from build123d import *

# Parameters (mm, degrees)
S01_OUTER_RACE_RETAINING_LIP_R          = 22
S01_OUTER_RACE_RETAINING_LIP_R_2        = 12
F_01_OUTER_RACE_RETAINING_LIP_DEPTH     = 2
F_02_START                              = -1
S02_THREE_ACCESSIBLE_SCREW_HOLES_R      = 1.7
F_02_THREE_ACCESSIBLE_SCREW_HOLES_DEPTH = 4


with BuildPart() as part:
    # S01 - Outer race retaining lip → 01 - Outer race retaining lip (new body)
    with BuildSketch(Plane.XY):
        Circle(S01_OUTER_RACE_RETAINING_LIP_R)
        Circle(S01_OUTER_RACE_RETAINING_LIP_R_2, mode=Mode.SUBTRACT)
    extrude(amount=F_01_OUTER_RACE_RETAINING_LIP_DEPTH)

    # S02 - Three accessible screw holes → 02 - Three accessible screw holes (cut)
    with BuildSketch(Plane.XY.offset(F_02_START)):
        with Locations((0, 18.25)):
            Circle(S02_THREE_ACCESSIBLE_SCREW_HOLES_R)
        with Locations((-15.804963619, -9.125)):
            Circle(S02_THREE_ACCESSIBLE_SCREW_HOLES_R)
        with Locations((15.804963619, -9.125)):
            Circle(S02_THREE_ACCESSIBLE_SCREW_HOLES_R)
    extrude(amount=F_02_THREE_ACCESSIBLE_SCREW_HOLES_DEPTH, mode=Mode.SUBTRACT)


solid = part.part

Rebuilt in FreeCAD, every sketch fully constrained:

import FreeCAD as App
import Part
import Sketcher

doc = App.newDocument("Part")
params = doc.addObject("Spreadsheet::Sheet", "Params")
for row, (alias, value) in enumerate([
    ("sketch1_diameter", "44 mm"),
    ("sketch1_diameter2", "24 mm"),
    ("pad1_length", "2 mm"),
    ("sketch2_diameter", "3.4 mm"),
    ("pocket1_length", "4 mm"),
], start=1):
    params.set(f"A{row}", alias)
    params.set(f"B{row}", "=" + value)
    params.setAlias(f"B{row}", alias)

body = doc.addObject("PartDesign::Body", "Body")

sketch1 = doc.addObject("Sketcher::SketchObject", "Sketch")
body.addObject(sketch1)
sketch1.AttachmentSupport = (doc.XY_Plane, [""])
sketch1.MapMode = "FlatFace"
sketch1.addGeometry([
    Part.Circle(App.Vector(0, 0, 0), App.Vector(0, 0, 1), 22),
    Part.Circle(App.Vector(0, 0, 0), App.Vector(0, 0, 1), 12),
], False)
sketch1.addConstraint([
    Sketcher.Constraint("Coincident", 0, 3, -1, 1),
    Sketcher.Constraint("Coincident", 1, 3, -1, 1),
    Sketcher.Constraint("Diameter", 0, 44.0),
    Sketcher.Constraint("Diameter", 1, 24.0),
])
sketch1.setExpression("Constraints[2]", "Params.sketch1_diameter")
sketch1.setExpression("Constraints[3]", "Params.sketch1_diameter2")
pad1 = doc.addObject("PartDesign::Pad", "Pad")
body.addObject(pad1)
pad1.Profile = sketch1
pad1.setExpression("Length", "Params.pad1_length")

sketch2 = doc.addObject("Sketcher::SketchObject", "Sketch001")
body.addObject(sketch2)
sketch2.AttachmentSupport = (doc.XY_Plane, [""])
sketch2.MapMode = "FlatFace"
sketch2.AttachmentOffset = App.Placement(App.Vector(0, 0, -1), App.Rotation())
sketch2.addGeometry([
    Part.Circle(App.Vector(0, 18.25, 0), App.Vector(0, 0, 1), 1.7),
    Part.Circle(App.Vector(-15.804964, -9.125, 0), App.Vector(0, 0, 1), 1.7),
    Part.Circle(App.Vector(15.804964, -9.125, 0), App.Vector(0, 0, 1), 1.7),
], False)
sketch2.addConstraint([
    Sketcher.Constraint("Equal", 0, 1),
    Sketcher.Constraint("Equal", 1, 2),
    Sketcher.Constraint("Symmetric", 1, 3, 2, 3, -2),
    Sketcher.Constraint("PointOnObject", 0, 3, -2),
    Sketcher.Constraint("Diameter", 0, 3.4),
    Sketcher.Constraint("DistanceY", -1, 1, 0, 3, 18.25),
    Sketcher.Constraint("DistanceY", 1, 3, -1, 1, 9.125),
    Sketcher.Constraint("DistanceX", 1, 3, -1, 1, 15.804964),
])
sketch2.setExpression("Constraints[4]", "Params.sketch2_diameter")
pocket1 = doc.addObject("PartDesign::Pocket", "Pocket")
body.addObject(pocket1)
pocket1.Profile = sketch2
pocket1.setExpression("Length", "Params.pocket1_length")
pocket1.Reversed = True

doc.recompute()
